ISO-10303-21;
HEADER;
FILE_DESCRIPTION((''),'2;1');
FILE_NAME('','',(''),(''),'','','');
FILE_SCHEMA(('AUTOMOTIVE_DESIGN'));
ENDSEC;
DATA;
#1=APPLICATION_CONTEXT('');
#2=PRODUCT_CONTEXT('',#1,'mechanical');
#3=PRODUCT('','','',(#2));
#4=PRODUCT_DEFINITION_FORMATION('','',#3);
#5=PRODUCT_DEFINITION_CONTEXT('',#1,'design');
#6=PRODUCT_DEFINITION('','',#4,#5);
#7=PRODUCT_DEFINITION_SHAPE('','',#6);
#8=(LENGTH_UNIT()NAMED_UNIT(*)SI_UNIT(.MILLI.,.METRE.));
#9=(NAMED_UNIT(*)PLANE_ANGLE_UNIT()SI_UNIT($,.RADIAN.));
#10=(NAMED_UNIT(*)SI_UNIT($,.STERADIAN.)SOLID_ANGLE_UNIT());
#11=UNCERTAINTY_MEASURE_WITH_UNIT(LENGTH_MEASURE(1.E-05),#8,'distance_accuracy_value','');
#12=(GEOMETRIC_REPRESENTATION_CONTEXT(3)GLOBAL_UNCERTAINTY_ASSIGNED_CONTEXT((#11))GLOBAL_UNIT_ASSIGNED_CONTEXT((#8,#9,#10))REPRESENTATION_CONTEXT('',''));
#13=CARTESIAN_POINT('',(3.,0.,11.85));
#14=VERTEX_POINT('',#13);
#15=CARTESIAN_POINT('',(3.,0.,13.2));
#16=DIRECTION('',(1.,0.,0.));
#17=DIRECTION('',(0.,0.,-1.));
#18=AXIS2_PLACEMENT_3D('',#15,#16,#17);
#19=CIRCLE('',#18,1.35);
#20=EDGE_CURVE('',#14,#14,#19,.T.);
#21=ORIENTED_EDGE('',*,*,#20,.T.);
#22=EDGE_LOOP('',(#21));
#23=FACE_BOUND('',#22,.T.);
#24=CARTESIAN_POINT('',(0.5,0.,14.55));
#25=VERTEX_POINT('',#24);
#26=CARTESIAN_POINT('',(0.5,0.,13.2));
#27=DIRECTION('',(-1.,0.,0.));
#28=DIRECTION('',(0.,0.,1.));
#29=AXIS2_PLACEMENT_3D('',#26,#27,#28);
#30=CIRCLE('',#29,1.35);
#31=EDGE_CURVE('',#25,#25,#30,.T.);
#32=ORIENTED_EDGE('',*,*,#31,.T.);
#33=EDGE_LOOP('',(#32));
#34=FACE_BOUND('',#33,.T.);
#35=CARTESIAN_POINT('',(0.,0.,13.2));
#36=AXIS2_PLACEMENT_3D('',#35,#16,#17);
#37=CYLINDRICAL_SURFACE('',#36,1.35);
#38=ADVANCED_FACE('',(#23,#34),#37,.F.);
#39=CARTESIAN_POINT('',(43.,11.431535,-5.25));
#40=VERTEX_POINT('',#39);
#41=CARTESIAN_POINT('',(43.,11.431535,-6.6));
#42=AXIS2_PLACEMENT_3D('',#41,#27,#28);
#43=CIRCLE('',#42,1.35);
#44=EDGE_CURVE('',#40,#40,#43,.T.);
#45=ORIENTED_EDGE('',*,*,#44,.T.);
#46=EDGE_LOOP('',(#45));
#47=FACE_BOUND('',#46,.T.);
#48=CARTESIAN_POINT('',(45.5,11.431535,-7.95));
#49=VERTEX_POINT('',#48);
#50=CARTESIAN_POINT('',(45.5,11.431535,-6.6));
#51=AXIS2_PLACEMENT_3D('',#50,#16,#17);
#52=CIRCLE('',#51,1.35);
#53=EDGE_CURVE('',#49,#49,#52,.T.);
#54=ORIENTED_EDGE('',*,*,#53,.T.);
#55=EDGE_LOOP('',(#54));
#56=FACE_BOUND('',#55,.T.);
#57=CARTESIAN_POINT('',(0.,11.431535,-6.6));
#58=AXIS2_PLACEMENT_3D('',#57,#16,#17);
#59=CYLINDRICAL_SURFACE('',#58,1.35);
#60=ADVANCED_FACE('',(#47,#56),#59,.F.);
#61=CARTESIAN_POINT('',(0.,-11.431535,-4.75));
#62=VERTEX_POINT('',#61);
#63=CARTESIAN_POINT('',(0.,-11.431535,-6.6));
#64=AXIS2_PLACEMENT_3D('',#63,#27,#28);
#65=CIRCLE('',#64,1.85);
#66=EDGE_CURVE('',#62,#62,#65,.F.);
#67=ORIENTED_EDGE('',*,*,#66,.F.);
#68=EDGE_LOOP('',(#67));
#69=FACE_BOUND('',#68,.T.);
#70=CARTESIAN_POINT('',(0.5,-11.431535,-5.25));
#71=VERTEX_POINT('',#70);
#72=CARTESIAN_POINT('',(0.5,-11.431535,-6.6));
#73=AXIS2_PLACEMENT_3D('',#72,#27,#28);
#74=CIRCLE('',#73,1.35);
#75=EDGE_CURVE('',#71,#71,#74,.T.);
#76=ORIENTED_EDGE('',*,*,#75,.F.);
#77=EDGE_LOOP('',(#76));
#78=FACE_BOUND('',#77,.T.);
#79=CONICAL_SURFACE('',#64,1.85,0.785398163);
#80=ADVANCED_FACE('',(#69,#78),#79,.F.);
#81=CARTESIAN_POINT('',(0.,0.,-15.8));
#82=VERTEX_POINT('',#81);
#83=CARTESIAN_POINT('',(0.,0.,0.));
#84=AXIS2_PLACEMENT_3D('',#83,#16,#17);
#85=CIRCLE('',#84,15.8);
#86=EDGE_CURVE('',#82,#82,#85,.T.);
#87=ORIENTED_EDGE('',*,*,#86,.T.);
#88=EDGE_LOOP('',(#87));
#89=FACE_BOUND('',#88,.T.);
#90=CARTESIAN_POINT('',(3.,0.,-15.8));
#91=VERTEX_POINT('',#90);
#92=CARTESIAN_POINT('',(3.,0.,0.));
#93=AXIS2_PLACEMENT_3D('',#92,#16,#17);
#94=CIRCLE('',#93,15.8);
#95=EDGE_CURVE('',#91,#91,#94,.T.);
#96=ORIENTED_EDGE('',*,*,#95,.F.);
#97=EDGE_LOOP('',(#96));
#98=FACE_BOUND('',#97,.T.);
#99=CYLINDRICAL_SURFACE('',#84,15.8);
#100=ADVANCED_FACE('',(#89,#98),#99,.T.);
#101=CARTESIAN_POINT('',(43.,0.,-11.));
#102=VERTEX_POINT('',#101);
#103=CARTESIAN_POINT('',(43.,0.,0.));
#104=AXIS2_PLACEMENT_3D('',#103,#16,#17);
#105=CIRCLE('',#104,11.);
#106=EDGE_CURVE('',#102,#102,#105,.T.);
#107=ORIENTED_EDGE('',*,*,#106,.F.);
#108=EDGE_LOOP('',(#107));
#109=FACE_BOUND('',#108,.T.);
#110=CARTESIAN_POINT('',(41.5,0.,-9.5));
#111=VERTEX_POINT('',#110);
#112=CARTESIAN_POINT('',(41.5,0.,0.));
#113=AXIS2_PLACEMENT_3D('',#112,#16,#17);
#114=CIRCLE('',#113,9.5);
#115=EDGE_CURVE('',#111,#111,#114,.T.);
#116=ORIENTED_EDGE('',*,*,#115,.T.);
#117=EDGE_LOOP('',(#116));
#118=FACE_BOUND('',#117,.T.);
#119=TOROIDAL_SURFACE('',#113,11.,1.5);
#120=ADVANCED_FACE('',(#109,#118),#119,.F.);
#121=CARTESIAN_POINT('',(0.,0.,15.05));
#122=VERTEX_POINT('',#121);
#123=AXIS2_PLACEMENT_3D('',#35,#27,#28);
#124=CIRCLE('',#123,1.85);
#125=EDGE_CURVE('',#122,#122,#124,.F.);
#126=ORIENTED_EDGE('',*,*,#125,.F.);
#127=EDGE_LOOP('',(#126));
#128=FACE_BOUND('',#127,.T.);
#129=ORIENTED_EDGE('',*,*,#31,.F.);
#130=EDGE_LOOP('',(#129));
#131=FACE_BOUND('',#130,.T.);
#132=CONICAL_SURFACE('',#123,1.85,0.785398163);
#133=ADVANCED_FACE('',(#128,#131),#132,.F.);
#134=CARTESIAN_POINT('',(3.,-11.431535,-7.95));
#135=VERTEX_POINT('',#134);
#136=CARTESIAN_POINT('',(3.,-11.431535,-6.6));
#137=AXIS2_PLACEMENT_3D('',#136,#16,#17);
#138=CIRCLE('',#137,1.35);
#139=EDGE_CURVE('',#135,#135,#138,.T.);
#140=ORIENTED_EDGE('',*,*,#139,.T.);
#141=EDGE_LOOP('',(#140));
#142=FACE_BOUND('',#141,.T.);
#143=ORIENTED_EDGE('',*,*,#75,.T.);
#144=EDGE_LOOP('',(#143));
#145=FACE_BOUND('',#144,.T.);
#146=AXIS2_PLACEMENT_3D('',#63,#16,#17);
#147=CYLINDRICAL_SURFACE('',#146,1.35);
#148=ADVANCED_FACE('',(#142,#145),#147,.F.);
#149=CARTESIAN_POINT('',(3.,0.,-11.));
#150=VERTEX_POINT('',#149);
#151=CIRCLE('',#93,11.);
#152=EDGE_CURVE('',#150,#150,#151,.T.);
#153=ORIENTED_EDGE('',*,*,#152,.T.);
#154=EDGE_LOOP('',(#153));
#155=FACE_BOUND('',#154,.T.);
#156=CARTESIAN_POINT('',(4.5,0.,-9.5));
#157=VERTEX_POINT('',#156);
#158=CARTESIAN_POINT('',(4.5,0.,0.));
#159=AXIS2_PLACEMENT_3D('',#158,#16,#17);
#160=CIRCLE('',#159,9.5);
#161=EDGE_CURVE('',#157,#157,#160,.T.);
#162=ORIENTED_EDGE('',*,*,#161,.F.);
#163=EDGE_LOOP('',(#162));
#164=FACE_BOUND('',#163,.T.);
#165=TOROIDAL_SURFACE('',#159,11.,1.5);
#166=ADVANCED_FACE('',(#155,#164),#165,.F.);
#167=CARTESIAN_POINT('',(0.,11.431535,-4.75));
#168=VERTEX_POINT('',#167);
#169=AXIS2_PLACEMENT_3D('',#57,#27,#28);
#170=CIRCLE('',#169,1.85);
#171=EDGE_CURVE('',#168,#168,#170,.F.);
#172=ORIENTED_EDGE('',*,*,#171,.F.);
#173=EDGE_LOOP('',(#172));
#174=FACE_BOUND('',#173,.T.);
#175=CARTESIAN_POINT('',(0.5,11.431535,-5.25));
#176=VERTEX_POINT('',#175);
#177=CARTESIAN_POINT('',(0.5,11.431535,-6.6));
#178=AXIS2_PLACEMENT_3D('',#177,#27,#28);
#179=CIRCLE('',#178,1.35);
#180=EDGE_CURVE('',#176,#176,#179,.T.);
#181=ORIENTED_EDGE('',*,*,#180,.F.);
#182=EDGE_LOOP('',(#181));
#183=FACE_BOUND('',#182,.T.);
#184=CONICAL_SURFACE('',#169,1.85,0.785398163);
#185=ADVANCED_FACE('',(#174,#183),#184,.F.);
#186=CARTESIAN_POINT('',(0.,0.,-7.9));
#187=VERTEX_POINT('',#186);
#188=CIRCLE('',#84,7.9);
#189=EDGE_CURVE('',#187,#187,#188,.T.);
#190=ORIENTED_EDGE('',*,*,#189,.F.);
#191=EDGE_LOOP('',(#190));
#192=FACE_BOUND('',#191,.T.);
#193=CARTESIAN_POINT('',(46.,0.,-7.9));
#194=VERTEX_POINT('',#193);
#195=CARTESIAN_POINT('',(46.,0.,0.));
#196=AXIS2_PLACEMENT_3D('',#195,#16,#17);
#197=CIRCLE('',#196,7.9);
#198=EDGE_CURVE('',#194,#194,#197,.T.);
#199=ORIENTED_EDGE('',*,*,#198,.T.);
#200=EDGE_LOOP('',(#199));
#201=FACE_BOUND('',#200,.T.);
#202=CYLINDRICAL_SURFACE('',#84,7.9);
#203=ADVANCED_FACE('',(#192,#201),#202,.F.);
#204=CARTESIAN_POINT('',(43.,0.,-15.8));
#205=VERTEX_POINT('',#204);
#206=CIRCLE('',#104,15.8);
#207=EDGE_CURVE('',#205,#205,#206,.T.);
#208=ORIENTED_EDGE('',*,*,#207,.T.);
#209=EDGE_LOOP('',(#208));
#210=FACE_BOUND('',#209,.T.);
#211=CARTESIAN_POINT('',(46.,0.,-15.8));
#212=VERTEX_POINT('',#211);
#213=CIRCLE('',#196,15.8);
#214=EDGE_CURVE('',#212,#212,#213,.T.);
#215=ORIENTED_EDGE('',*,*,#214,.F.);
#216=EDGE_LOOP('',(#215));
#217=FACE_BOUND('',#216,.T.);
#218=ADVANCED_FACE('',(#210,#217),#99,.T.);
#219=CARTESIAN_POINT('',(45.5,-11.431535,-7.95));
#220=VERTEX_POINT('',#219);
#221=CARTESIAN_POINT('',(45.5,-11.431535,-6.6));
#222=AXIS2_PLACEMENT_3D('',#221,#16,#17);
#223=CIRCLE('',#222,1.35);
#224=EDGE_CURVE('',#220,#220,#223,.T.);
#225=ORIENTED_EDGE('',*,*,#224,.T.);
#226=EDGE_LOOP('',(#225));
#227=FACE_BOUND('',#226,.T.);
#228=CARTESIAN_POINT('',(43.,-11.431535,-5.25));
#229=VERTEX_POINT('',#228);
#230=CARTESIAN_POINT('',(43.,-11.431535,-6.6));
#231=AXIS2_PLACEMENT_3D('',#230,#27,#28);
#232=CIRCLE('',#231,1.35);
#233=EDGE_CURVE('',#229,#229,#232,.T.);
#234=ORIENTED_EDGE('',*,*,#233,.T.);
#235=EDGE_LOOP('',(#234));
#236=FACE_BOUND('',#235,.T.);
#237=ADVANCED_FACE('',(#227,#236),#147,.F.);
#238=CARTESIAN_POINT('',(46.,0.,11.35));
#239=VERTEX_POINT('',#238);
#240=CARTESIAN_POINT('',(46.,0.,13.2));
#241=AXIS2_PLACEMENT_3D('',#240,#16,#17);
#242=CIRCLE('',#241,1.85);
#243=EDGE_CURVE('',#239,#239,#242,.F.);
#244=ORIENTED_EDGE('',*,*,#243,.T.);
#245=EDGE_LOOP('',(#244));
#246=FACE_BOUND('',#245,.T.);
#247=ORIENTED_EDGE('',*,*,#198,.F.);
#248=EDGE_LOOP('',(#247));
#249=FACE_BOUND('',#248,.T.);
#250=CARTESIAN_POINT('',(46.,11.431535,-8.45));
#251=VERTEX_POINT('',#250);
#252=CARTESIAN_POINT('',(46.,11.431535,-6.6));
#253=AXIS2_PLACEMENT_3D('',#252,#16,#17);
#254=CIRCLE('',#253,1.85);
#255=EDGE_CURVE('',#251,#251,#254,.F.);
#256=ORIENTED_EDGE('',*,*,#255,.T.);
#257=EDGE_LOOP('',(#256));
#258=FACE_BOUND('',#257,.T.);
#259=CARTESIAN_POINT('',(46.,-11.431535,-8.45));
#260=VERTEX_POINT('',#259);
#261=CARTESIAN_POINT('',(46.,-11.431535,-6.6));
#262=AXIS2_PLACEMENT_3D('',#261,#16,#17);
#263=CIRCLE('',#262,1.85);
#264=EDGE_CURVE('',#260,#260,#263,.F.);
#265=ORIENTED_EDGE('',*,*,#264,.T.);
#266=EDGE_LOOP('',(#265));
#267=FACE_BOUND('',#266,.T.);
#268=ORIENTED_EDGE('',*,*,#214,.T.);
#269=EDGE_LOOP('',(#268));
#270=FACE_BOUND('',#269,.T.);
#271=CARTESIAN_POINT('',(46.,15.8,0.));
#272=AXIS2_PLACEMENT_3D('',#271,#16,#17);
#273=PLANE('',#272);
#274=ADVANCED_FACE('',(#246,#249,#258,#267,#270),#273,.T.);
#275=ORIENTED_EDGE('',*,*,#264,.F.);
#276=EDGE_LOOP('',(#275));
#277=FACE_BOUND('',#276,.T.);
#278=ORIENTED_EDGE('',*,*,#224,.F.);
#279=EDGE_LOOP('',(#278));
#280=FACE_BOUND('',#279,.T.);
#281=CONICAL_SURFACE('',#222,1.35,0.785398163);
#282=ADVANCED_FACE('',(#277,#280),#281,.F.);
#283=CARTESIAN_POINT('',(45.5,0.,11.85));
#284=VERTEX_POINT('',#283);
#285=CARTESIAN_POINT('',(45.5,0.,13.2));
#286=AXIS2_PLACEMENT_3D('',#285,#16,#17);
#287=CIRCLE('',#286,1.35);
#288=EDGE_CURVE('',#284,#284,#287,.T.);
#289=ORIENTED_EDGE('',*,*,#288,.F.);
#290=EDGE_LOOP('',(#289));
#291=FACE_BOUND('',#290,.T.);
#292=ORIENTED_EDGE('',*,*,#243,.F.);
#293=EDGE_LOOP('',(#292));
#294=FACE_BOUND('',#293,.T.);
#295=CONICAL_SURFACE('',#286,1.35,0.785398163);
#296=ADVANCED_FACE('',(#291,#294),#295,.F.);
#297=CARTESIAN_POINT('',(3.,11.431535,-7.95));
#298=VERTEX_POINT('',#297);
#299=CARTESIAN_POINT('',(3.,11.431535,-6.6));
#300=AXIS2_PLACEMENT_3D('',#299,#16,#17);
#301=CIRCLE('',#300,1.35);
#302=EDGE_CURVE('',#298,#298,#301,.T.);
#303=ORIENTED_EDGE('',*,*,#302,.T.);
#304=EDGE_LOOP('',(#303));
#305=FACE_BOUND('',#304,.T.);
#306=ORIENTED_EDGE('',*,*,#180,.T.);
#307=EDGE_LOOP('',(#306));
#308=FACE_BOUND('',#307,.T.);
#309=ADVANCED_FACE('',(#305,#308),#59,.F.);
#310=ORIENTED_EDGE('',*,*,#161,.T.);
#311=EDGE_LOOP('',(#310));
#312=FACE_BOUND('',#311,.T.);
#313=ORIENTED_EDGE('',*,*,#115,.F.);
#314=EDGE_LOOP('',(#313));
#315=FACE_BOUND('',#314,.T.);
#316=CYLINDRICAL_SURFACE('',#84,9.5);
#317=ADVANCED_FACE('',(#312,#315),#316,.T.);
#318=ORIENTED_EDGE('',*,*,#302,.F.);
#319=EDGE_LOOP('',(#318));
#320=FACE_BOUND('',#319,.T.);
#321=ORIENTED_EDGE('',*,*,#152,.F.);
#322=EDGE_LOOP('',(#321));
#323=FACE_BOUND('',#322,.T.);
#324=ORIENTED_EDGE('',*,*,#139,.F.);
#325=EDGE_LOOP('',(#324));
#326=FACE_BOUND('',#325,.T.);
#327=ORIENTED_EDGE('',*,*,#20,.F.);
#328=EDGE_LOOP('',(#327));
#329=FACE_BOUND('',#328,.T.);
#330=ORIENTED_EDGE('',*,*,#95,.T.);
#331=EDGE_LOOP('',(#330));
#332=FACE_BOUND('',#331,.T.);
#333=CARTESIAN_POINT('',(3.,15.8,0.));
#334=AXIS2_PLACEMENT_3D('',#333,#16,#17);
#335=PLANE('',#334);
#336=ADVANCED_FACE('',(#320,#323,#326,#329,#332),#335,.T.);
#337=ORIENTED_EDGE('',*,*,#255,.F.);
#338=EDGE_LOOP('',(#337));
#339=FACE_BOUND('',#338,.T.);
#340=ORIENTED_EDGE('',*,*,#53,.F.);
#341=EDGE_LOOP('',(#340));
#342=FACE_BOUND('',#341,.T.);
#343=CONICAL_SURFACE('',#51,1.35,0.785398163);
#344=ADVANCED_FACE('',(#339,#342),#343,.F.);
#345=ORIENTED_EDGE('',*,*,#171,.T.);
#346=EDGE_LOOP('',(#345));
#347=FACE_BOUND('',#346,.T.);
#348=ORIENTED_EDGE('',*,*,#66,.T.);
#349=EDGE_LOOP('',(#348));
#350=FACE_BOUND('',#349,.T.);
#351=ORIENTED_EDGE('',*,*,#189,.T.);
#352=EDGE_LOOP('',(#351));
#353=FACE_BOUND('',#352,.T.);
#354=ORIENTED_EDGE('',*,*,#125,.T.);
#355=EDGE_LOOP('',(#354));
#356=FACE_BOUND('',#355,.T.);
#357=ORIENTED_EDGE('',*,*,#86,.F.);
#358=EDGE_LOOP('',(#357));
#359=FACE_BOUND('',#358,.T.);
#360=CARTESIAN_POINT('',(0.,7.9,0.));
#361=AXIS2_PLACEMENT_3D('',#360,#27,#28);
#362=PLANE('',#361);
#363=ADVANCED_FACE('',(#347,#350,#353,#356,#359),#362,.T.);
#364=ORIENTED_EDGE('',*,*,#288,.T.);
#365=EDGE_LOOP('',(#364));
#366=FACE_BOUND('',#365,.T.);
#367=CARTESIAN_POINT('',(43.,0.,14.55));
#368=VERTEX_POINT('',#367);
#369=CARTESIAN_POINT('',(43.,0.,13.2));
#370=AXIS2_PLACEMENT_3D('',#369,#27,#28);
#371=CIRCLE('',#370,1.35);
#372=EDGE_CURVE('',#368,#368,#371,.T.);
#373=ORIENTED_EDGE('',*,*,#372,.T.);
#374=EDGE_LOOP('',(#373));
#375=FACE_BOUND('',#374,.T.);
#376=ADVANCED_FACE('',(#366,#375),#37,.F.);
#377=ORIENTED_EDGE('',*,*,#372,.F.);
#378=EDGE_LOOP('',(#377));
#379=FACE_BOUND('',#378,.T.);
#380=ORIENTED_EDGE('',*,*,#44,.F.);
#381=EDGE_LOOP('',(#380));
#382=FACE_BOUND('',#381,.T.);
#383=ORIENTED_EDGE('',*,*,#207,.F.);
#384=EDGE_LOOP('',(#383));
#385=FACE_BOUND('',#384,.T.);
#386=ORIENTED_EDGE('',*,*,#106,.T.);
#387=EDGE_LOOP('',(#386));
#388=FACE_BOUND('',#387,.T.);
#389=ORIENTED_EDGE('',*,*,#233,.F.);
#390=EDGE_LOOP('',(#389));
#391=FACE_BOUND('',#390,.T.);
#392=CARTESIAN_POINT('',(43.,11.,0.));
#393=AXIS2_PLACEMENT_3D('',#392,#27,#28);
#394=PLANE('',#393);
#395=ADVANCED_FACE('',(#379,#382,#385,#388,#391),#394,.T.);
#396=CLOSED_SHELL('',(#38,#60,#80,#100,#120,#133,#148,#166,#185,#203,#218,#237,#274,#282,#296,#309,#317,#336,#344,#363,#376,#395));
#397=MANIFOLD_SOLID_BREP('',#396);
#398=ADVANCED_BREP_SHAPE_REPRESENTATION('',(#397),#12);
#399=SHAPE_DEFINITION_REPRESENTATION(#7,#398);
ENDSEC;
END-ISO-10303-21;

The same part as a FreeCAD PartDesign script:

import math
import FreeCAD as App
import Part
import Sketcher
from FreeCAD import Vector


def edges_at(feature, points):
    """Names of the edges that pass closest to the given points."""
    edges = feature.Shape.Edges
    near = lambda p: min(range(len(edges)), key=lambda i: edges[i].distToShape(Part.Vertex(*p))[0])
    return sorted({f"Edge{near(p) + 1}" for p in points})

doc = App.newDocument("Part")
body = doc.addObject("PartDesign::Body", "Body")

sketch1 = doc.addObject("Sketcher::SketchObject", "Sketch")
body.addObject(sketch1)
sketch1.AttachmentSupport = (doc.XY_Plane, [""])
sketch1.MapMode = "FlatFace"
sketch1.addGeometry(Part.LineSegment(Vector(0, 15.8, 0), Vector(0, 7.9, 0)), False)
sketch1.addGeometry(Part.LineSegment(Vector(0, 7.9, 0), Vector(46, 7.9, 0)), False)
sketch1.addGeometry(Part.LineSegment(Vector(46, 7.9, 0), Vector(46, 15.8, 0)), False)
sketch1.addGeometry(Part.LineSegment(Vector(46, 15.8, 0), Vector(43, 15.8, 0)), False)
sketch1.addGeometry(Part.LineSegment(Vector(43, 15.8, 0), Vector(43, 11, 0)), False)
sketch1.addGeometry(Part.ArcOfCircle(Part.Circle(Vector(41.5, 11, 0), Vector(0, 0, 1), 1.5), math.radians(-90), math.radians(0)), False)
sketch1.addGeometry(Part.LineSegment(Vector(41.5, 9.5, 0), Vector(4.5, 9.5, 0)), False)
sketch1.addGeometry(Part.ArcOfCircle(Part.Circle(Vector(4.5, 11, 0), Vector(0, 0, 1), 1.5), math.radians(180), math.radians(270)), False)
sketch1.addGeometry(Part.LineSegment(Vector(3, 11, 0), Vector(3, 15.8, 0)), False)
sketch1.addGeometry(Part.LineSegment(Vector(3, 15.8, 0), Vector(0, 15.8, 0)), False)
sketch1.addConstraint(Sketcher.Constraint("Coincident", 0, 2, 1, 1))
sketch1.addConstraint(Sketcher.Constraint("Coincident", 1, 2, 2, 1))
sketch1.addConstraint(Sketcher.Constraint("Coincident", 2, 2, 3, 1))
sketch1.addConstraint(Sketcher.Constraint("Coincident", 3, 2, 4, 1))
sketch1.addConstraint(Sketcher.Constraint("Tangent", 4, 2, 5, 2))
sketch1.addConstraint(Sketcher.Constraint("Tangent", 5, 1, 6, 1))
sketch1.addConstraint(Sketcher.Constraint("Tangent", 6, 2, 7, 2))
sketch1.addConstraint(Sketcher.Constraint("Tangent", 7, 1, 8, 1))
sketch1.addConstraint(Sketcher.Constraint("Coincident", 8, 2, 9, 1))
sketch1.addConstraint(Sketcher.Constraint("Coincident", 9, 2, 0, 1))
sketch1.addConstraint(Sketcher.Constraint("Vertical", 0))
sketch1.addConstraint(Sketcher.Constraint("Horizontal", 1))
sketch1.addConstraint(Sketcher.Constraint("Vertical", 2))
sketch1.addConstraint(Sketcher.Constraint("Horizontal", 3))
sketch1.addConstraint(Sketcher.Constraint("Vertical", 4))
sketch1.addConstraint(Sketcher.Constraint("Horizontal", 6))
sketch1.addConstraint(Sketcher.Constraint("Vertical", 8))
sketch1.addConstraint(Sketcher.Constraint("Horizontal", 9))
sketch1.addConstraint(Sketcher.Constraint("Equal", 5, 7))
sketch1.addConstraint(Sketcher.Constraint("PointOnObject", 0, 2, -2))
sketch1.addConstraint(Sketcher.Constraint("Horizontal", 3, 2, 8, 2))
sketch1.addConstraint(Sketcher.Constraint("Equal", 3, 9))
sketch1.addConstraint(Sketcher.Constraint("Radius", 5, 1.5))
sketch1.addConstraint(Sketcher.Constraint("DistanceX", 1, 1, 1, 2, 46.0))
sketch1.addConstraint(Sketcher.Constraint("DistanceX", 3, 2, 3, 1, 3.0))
sketch1.addConstraint(Sketcher.Constraint("DistanceY", 0, 2, 0, 1, 7.9))
sketch1.addConstraint(Sketcher.Constraint("DistanceY", 4, 2, 4, 1, 4.8))
sketch1.addConstraint(Sketcher.Constraint("DistanceY", -1, 1, 5, 3, 11.0))
revolution = doc.addObject("PartDesign::Revolution", "Revolution")
body.addObject(revolution)
revolution.Profile = sketch1
revolution.ReferenceAxis = (sketch1, ["H_Axis"])
revolution.Angle = 360

sketch2 = doc.addObject("Sketcher::SketchObject", "Sketch001")
body.addObject(sketch2)
sketch2.AttachmentSupport = (doc.YZ_Plane, [""])
sketch2.MapMode = "FlatFace"
sketch2.AttachmentOffset = App.Placement(Vector(0, 0, 46), App.Rotation())
sketch2.addGeometry(Part.Circle(Vector(0, 13.2, 0), Vector(0, 0, 1), 1.35), False)
sketch2.addGeometry(Part.Circle(Vector(11.431535, -6.6, 0), Vector(0, 0, 1), 1.35), False)
sketch2.addGeometry(Part.Circle(Vector(-11.431535, -6.6, 0), Vector(0, 0, 1), 1.35), False)
sketch2.addConstraint(Sketcher.Constraint("Equal", 0, 1))
sketch2.addConstraint(Sketcher.Constraint("Equal", 1, 2))
sketch2.addConstraint(Sketcher.Constraint("Symmetric", 1, 3, 2, 3, -2))
sketch2.addConstraint(Sketcher.Constraint("PointOnObject", 0, 3, -2))
sketch2.addConstraint(Sketcher.Constraint("Diameter", 0, 2.7))
sketch2.addConstraint(Sketcher.Constraint("DistanceY", -1, 1, 0, 3, 13.2))
sketch2.addConstraint(Sketcher.Constraint("DistanceY", 1, 3, -1, 1, 6.6))
sketch2.addConstraint(Sketcher.Constraint("DistanceX", 2, 3, 1, 3, 22.863071))
pocket1 = doc.addObject("PartDesign::Pocket", "Pocket")
body.addObject(pocket1)
pocket1.Profile = sketch2
pocket1.Type = "ThroughAll"
doc.recompute()

chamfer = doc.addObject("PartDesign::Chamfer", "Chamfer")
body.addObject(chamfer)
chamfer.Base = (pocket1, edges_at(pocket1, [
    (0, 0, 14.55),
    (46, 0, 14.55),
    (0, 11.432, -5.25),
    (46, 11.432, -5.25),
    (0, -11.432, -5.25),
    (46, -11.432, -5.25),
]))
chamfer.Size = 0.5

doc.recompute()
